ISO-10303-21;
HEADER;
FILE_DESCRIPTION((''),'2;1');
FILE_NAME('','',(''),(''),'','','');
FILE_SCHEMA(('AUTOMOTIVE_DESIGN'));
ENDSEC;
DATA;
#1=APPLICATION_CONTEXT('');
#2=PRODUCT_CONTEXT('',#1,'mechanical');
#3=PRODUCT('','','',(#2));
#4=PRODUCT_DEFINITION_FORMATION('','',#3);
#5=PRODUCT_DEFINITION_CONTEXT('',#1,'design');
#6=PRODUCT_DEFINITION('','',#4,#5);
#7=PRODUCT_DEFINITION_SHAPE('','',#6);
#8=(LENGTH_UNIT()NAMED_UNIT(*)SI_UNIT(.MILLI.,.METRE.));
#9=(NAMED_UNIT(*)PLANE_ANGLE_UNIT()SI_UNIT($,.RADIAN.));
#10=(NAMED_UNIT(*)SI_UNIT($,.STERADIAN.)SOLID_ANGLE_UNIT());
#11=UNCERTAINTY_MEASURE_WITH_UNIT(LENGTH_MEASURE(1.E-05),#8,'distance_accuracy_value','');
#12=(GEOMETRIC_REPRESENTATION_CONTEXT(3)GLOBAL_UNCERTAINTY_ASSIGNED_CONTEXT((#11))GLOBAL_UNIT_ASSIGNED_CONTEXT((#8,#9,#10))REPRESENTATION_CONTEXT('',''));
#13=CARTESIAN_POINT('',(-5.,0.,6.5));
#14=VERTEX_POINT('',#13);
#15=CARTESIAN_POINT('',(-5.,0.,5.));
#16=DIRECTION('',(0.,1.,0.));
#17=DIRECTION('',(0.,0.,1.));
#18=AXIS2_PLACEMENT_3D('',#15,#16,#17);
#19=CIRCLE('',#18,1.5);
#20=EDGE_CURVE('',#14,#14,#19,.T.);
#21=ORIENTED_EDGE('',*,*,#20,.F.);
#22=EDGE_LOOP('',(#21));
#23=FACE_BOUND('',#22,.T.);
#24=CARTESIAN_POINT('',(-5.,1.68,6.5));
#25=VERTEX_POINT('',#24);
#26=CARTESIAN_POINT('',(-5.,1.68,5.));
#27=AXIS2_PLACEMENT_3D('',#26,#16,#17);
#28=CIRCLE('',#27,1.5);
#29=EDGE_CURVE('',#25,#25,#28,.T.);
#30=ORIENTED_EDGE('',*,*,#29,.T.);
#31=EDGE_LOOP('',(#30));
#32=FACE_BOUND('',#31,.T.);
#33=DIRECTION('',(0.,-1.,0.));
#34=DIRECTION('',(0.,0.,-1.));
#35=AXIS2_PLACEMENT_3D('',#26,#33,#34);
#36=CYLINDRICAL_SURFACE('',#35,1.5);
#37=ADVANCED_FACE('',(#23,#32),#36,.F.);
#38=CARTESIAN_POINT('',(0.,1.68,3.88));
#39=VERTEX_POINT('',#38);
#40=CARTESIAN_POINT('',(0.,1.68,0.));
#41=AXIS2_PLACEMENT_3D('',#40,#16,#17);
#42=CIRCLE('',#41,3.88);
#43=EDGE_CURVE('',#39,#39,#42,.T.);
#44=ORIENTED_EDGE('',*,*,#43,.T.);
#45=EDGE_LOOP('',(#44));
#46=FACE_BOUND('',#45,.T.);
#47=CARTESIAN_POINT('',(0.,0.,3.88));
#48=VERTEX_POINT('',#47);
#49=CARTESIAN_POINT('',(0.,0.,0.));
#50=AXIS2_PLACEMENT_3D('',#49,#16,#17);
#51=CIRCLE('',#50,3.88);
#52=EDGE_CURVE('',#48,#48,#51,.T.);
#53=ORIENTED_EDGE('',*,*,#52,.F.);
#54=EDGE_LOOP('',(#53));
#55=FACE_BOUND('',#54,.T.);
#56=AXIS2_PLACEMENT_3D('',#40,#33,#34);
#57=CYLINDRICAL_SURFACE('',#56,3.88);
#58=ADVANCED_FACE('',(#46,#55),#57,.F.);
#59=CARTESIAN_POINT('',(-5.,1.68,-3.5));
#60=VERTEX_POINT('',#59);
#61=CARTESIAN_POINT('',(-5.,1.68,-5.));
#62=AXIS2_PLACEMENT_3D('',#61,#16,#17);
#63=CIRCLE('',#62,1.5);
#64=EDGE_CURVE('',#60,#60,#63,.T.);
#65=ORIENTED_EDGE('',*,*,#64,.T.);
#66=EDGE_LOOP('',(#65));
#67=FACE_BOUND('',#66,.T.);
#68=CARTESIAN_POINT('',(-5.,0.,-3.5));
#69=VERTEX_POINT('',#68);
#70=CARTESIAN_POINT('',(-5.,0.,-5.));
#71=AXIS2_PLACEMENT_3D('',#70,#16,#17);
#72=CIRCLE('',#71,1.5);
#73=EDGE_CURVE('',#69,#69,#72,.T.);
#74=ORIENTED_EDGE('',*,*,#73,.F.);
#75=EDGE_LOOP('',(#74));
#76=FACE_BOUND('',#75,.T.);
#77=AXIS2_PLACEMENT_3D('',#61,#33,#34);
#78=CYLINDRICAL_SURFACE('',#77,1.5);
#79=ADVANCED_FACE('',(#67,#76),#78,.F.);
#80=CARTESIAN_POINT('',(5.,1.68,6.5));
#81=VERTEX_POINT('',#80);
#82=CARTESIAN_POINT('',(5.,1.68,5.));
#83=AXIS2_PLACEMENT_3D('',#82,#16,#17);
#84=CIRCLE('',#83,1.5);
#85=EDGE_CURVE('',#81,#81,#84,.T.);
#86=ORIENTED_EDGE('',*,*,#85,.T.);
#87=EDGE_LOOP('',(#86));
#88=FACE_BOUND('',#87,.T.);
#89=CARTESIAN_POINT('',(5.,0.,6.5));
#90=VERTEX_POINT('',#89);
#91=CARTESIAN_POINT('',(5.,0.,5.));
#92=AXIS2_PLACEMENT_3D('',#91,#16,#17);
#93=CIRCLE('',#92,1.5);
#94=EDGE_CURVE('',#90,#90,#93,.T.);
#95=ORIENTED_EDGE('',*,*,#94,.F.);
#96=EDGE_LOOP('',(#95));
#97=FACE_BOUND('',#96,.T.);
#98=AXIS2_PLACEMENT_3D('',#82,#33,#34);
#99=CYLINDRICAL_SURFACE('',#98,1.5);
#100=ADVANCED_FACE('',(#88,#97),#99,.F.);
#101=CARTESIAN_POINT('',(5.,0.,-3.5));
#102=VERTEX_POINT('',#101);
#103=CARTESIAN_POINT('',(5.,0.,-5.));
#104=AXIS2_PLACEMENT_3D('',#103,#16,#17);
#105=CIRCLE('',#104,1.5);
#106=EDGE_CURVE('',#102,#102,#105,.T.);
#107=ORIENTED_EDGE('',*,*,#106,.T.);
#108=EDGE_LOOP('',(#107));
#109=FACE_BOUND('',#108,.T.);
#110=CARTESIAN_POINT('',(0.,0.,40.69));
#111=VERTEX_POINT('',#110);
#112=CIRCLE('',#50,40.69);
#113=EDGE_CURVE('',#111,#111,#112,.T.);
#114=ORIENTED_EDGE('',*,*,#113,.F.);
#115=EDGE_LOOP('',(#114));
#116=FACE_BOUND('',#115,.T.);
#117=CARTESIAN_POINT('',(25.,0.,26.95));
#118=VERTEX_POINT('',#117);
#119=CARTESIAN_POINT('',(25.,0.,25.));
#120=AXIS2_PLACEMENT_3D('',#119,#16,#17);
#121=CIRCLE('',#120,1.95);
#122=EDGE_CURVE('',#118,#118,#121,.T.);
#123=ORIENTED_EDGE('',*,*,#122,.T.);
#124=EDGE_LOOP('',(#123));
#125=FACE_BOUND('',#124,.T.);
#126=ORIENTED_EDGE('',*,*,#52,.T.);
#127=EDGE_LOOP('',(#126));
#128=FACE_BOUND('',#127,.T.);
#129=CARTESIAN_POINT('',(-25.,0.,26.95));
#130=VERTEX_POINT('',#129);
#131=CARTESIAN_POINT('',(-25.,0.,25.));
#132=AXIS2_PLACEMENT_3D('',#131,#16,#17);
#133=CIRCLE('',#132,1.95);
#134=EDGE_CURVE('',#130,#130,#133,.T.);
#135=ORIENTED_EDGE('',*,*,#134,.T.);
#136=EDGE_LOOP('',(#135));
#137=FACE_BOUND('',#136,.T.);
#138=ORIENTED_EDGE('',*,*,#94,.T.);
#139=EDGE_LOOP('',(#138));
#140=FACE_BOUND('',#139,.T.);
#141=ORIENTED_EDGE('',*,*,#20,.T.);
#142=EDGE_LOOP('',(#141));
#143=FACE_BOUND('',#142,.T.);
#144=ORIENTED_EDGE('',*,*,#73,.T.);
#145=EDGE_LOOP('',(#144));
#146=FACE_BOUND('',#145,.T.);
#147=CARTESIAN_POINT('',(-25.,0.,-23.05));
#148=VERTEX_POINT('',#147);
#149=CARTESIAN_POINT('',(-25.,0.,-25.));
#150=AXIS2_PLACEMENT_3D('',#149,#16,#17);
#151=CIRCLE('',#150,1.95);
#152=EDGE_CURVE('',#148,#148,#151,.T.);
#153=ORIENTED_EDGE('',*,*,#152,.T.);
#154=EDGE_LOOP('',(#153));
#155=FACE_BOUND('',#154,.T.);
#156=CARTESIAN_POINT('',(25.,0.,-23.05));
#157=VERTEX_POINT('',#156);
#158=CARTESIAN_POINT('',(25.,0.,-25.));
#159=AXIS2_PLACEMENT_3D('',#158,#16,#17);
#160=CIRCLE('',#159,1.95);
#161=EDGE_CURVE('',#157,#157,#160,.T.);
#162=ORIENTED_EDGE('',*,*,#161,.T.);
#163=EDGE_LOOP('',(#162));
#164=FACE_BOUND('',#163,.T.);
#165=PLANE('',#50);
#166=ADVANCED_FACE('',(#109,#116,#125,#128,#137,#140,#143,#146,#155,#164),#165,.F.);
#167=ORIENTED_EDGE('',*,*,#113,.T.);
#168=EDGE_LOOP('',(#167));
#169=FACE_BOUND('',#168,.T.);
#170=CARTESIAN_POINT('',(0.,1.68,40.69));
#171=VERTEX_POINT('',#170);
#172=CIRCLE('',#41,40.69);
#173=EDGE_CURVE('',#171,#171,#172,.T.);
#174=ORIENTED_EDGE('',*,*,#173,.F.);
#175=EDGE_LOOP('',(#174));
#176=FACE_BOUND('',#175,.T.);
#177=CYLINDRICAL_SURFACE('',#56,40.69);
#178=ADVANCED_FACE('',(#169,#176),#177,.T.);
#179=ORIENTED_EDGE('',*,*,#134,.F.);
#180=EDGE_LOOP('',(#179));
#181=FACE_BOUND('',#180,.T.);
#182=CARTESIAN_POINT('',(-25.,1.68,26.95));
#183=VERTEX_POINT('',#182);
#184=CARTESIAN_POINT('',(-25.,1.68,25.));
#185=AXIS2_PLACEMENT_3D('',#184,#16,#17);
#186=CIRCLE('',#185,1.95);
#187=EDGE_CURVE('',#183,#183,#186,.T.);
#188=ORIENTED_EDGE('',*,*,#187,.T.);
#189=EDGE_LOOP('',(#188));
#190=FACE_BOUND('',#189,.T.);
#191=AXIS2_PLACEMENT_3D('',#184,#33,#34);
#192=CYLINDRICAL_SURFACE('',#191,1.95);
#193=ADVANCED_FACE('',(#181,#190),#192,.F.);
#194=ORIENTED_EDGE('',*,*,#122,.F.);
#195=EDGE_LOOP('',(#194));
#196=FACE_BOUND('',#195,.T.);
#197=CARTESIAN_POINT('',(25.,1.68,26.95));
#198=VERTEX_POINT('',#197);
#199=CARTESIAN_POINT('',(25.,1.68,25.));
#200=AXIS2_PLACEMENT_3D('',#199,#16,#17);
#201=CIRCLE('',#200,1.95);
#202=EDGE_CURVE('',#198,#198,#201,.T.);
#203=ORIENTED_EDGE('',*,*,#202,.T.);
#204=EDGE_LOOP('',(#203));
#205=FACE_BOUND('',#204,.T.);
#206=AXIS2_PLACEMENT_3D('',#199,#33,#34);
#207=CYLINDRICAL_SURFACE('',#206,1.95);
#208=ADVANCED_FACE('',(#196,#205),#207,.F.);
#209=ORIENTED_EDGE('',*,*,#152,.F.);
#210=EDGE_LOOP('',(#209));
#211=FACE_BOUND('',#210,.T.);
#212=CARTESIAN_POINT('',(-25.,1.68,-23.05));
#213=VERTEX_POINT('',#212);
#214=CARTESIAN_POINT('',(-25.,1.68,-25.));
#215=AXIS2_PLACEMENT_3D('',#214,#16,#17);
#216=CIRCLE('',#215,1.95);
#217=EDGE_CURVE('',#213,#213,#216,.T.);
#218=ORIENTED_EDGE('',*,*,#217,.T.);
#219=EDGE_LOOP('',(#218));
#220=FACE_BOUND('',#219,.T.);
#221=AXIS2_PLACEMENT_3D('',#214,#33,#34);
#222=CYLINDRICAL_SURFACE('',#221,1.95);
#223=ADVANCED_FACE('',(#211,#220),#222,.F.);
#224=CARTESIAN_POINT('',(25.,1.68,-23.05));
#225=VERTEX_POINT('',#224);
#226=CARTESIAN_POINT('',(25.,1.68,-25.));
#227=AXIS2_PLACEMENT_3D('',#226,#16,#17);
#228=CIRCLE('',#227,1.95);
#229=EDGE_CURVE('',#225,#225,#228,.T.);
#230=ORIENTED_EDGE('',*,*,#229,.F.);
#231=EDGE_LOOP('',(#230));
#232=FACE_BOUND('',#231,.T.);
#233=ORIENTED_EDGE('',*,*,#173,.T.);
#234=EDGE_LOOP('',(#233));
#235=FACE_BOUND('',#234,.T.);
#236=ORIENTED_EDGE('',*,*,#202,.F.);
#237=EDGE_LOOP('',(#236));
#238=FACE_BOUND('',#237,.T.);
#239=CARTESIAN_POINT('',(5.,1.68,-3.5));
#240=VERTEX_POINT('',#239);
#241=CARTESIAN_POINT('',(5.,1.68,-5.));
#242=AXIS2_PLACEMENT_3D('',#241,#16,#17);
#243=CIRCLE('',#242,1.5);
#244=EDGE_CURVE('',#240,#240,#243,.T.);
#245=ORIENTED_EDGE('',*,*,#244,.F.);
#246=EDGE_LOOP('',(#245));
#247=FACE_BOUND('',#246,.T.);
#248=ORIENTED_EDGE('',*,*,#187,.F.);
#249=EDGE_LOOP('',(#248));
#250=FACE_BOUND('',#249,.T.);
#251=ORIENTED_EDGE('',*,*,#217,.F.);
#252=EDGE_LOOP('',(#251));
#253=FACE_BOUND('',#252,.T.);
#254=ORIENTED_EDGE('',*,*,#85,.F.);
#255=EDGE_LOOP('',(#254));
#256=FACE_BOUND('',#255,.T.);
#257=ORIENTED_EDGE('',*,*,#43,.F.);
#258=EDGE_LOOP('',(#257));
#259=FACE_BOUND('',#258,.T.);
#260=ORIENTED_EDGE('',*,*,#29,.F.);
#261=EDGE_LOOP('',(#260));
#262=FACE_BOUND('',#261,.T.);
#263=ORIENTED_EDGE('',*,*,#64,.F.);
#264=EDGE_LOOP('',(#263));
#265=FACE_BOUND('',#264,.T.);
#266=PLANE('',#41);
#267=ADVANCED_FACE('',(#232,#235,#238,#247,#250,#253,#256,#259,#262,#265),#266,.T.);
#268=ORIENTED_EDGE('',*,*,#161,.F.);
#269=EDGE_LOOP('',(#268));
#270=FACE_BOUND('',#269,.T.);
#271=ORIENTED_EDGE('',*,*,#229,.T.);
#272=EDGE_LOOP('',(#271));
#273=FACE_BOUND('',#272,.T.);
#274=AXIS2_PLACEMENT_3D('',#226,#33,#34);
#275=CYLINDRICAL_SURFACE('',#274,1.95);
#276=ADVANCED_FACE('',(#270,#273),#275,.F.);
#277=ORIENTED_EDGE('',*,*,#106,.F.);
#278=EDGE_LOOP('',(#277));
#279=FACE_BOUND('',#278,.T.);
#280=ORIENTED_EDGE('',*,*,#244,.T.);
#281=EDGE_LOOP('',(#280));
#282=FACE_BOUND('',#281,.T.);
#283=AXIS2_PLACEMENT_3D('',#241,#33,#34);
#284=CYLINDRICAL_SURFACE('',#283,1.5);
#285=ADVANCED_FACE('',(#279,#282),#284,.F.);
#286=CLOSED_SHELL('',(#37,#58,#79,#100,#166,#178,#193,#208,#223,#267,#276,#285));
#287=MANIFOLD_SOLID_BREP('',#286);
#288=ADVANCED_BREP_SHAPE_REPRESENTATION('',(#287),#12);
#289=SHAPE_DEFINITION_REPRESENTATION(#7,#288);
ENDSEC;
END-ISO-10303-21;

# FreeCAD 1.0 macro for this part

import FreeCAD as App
import Part
import Sketcher
from FreeCAD import Vector

doc = App.newDocument("Part")
params = doc.addObject("Spreadsheet::Sheet", "Params")
for row, (alias, value) in enumerate([
    ("sketch1_diameter", "3 mm"),
    ("sketch1_diameter2", "3.9 mm"),
    ("sketch1_diameter3", "81.38 mm"),
    ("sketch1_diameter4", "7.76 mm"),
    ("pad1_length", "1.68 mm"),
], start=1):
    params.set(f"A{row}", alias)
    params.set(f"B{row}", "=" + value)
    params.setAlias(f"B{row}", alias)

body = doc.addObject("PartDesign::Body", "Body")

sketch1 = doc.addObject("Sketcher::SketchObject", "Sketch")
body.addObject(sketch1)
sketch1.AttachmentSupport = (doc.XZ_Plane, [""])
sketch1.MapMode = "FlatFace"
sketch1.addGeometry([
    Part.Circle(Vector(0, 0, 0), Vector(0, 0, 1), 40.69),
    Part.Circle(Vector(-25, -25, 0), Vector(0, 0, 1), 1.95),
    Part.Circle(Vector(-5, -5, 0), Vector(0, 0, 1), 1.5),
    Part.Circle(Vector(-25, 25, 0), Vector(0, 0, 1), 1.95),
    Part.Circle(Vector(-5, 5, 0), Vector(0, 0, 1), 1.5),
    Part.Circle(Vector(5, -5, 0), Vector(0, 0, 1), 1.5),
    Part.Circle(Vector(25, -25, 0), Vector(0, 0, 1), 1.95),
    Part.Circle(Vector(0, 0, 0), Vector(0, 0, 1), 3.88),
    Part.Circle(Vector(5, 5, 0), Vector(0, 0, 1), 1.5),
    Part.Circle(Vector(25, 25, 0), Vector(0, 0, 1), 1.95),
], False)
sketch1.addConstraint([
    Sketcher.Constraint("Coincident", 0, 3, -1, 1),
    Sketcher.Constraint("Coincident", 7, 3, -1, 1),
    Sketcher.Constraint("Equal", 1, 3),
    Sketcher.Constraint("Equal", 2, 4),
    Sketcher.Constraint("Equal", 4, 5),
    Sketcher.Constraint("Equal", 3, 6),
    Sketcher.Constraint("Equal", 5, 8),
    Sketcher.Constraint("Equal", 6, 9),
    Sketcher.Constraint("Symmetric", 4, 3, 5, 3, -1, 1),
    Sketcher.Constraint("Symmetric", 3, 3, 6, 3, -1, 1),
    Sketcher.Constraint("Symmetric", 2, 3, 8, 3, -1, 1),
    Sketcher.Constraint("Symmetric", 1, 3, 9, 3, -1, 1),
    Sketcher.Constraint("Symmetric", 2, 3, 5, 3, -2),
    Sketcher.Constraint("Symmetric", 1, 3, 6, 3, -2),
    Sketcher.Constraint("Diameter", 2, 3.0),
    Sketcher.Constraint("Diameter", 1, 3.9),
    Sketcher.Constraint("Diameter", 0, 81.38),
    Sketcher.Constraint("Diameter", 7, 7.76),
    Sketcher.Constraint("DistanceX", 1, 3, -1, 1, 25.0),
    Sketcher.Constraint("DistanceY", 1, 3, -1, 1, 25.0),
    Sketcher.Constraint("DistanceX", 2, 3, -1, 1, 5.0),
    Sketcher.Constraint("DistanceY", 2, 3, -1, 1, 5.0),
])
sketch1.setExpression("Constraints[14]", "Params.sketch1_diameter")
sketch1.setExpression("Constraints[15]", "Params.sketch1_diameter2")
sketch1.setExpression("Constraints[16]", "Params.sketch1_diameter3")
sketch1.setExpression("Constraints[17]", "Params.sketch1_diameter4")
pad1 = doc.addObject("PartDesign::Pad", "Pad")
body.addObject(pad1)
pad1.Profile = sketch1
pad1.setExpression("Length", "Params.pad1_length")
pad1.Reversed = True

doc.recompute()
